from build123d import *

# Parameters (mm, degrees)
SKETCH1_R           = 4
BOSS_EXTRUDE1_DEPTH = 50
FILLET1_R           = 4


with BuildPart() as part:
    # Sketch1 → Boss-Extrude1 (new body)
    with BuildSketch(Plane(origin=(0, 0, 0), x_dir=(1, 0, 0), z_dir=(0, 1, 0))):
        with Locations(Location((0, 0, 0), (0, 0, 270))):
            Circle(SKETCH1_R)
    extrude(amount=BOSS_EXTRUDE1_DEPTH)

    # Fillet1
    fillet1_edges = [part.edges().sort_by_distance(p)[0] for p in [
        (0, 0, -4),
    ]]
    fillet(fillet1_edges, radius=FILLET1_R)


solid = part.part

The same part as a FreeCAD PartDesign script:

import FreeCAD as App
import Part
import Sketcher
from FreeCAD import Vector
Q = App.Units.Quantity


def edges_at(feature, points):
    """Names of the edges that pass closest to the given points."""
    edges = feature.Shape.Edges
    near = lambda p: min(range(len(edges)), key=lambda i: edges[i].distToShape(Part.Vertex(*p))[0])
    return sorted({f"Edge{near(p) + 1}" for p in points})

doc = App.newDocument("Part")
body = doc.addObject("PartDesign::Body", "Body")

# Sketch on XZ plane
sketch1 = body.newObject("Sketcher::SketchObject", "Sketch")
sketch1.AttachmentSupport = (doc.getObject("XZ_Plane"), [""])
sketch1.MapMode = "FlatFace"
sketch1.addGeometry(Part.Circle(Vector(0, 0, 0), Vector(0, 0, 1), 4), False)
sketch1.addConstraint([
    Sketcher.Constraint("Coincident", 0, 3, -1, 1),
    Sketcher.Constraint("Diameter", 0, Q("8 mm")),
])
pad1 = body.newObject("PartDesign::Pad", "Pad")
pad1.Profile = sketch1
pad1.Length = 50
pad1.Reversed = True
doc.recompute()

fillet = body.newObject("PartDesign::Fillet", "Fillet")
fillet.Base = (pad1, edges_at(pad1, [(0, 0, -4)]))
fillet.Radius = 4

doc.recompute()
